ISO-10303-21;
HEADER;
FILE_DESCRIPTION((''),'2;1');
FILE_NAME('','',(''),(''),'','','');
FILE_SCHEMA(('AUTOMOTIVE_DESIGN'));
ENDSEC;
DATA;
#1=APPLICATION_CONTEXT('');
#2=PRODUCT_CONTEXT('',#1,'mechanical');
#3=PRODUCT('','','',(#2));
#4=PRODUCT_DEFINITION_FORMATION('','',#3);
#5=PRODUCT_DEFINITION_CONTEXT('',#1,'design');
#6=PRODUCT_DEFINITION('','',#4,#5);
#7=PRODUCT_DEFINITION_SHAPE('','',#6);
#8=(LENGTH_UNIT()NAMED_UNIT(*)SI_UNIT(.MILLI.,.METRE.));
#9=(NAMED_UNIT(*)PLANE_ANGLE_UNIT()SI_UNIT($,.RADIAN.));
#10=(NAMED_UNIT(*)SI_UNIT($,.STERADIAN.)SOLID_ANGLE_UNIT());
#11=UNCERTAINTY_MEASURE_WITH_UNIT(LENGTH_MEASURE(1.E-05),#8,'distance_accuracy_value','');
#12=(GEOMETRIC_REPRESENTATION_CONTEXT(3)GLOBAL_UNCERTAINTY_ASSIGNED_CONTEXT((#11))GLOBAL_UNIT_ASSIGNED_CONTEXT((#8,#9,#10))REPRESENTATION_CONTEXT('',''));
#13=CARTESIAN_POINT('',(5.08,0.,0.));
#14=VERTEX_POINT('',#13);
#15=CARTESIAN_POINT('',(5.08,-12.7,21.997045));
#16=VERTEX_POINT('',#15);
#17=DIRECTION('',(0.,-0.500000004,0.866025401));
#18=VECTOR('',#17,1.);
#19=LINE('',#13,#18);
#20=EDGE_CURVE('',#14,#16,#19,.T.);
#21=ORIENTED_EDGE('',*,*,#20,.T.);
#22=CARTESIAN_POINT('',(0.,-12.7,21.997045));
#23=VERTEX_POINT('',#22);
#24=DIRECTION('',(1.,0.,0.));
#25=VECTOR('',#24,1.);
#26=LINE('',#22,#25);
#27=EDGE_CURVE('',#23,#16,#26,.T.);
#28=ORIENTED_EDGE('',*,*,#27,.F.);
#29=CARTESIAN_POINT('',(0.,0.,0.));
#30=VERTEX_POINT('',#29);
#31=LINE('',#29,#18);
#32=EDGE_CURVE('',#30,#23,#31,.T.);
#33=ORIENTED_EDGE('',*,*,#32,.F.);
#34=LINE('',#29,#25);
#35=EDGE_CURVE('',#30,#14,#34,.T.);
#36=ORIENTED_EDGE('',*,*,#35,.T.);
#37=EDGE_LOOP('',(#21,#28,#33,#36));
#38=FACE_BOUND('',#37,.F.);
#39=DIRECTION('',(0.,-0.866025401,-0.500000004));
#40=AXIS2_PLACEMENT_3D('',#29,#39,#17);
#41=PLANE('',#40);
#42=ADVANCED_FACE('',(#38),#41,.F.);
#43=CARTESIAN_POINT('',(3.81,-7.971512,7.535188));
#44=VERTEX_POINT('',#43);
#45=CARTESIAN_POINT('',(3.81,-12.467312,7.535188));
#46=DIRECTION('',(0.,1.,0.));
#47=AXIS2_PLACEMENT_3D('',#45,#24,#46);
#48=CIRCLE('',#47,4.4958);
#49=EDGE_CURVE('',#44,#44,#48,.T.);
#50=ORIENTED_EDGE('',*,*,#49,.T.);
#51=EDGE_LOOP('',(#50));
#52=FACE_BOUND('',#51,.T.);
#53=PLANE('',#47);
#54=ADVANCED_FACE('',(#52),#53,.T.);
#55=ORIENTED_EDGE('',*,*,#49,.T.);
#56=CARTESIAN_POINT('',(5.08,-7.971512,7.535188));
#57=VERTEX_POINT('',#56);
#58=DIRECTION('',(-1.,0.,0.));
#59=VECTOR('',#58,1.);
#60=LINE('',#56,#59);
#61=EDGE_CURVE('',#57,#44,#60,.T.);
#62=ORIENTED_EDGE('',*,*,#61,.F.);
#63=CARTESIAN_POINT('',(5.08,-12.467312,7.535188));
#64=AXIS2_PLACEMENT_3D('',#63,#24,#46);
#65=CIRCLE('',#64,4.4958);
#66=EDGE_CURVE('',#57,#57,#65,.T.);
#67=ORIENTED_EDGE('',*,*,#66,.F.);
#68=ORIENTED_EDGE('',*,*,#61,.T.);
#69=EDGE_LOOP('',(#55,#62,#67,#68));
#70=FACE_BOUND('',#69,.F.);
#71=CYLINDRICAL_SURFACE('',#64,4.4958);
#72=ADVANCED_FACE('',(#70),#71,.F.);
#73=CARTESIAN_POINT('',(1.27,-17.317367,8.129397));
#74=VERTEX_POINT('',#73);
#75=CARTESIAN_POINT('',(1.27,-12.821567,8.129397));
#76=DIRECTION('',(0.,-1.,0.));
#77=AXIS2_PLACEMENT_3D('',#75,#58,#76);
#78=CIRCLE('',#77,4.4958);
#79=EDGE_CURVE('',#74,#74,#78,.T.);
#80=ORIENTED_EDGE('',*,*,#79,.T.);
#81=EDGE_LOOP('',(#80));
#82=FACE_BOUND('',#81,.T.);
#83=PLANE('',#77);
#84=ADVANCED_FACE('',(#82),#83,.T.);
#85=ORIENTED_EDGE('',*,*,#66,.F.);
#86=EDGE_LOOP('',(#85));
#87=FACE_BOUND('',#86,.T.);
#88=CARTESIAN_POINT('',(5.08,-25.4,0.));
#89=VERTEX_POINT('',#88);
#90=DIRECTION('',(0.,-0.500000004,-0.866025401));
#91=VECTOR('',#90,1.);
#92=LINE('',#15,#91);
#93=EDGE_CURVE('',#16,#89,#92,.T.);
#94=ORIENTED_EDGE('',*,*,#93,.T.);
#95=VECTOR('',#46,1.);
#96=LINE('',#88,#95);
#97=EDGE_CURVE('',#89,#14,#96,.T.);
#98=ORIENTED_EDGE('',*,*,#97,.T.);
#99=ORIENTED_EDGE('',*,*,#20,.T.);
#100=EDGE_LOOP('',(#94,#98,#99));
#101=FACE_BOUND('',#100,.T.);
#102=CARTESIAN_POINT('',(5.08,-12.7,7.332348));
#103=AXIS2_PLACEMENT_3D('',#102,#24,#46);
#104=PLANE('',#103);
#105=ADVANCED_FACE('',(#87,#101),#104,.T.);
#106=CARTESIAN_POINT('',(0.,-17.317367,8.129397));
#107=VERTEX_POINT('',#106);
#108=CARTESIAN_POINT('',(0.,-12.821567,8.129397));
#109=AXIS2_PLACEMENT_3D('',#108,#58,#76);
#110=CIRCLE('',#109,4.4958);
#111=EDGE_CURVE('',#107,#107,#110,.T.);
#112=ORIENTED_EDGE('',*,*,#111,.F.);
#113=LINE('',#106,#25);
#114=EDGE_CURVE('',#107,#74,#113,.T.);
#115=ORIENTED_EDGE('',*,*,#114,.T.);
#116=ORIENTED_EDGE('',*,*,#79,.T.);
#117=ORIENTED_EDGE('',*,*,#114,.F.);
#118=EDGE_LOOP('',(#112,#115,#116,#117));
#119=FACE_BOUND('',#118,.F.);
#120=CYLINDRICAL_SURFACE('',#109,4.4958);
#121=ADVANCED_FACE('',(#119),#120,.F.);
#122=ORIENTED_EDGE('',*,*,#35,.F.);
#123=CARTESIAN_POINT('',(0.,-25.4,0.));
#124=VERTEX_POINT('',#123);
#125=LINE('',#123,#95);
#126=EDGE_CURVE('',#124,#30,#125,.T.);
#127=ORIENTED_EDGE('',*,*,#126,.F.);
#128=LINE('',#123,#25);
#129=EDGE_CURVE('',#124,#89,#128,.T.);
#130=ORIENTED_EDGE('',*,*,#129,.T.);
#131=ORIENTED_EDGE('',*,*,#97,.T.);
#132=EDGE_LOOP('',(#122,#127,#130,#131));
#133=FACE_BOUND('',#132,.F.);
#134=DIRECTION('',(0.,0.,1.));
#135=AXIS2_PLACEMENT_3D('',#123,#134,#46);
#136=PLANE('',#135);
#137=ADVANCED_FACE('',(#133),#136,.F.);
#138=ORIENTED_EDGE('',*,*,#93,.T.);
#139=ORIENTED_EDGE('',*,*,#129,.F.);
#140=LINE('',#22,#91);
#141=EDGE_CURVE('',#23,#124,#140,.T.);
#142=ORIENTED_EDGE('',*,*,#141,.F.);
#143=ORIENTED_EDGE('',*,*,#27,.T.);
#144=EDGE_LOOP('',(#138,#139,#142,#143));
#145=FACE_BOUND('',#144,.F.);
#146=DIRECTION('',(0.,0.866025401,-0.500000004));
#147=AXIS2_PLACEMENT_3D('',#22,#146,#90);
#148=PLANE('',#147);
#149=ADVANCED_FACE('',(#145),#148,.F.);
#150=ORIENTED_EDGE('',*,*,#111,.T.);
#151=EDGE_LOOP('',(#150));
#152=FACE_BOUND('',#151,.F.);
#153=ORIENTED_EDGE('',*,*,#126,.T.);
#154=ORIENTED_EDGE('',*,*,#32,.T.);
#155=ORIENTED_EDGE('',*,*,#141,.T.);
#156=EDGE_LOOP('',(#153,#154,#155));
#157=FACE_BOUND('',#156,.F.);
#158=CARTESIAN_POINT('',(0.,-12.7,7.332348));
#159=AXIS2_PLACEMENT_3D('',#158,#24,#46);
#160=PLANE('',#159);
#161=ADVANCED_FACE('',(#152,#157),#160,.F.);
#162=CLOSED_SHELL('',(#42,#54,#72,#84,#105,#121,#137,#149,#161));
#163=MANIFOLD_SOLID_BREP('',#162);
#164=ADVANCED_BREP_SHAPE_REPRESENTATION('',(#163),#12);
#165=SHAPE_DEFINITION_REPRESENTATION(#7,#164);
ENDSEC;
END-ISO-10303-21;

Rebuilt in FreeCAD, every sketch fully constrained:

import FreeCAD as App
import Part
import Sketcher
from FreeCAD import Vector
Q = App.Units.Quantity

doc = App.newDocument("Part")
params = doc.addObject("Spreadsheet::Sheet", "Params")
for row, (alias, value) in enumerate([
    ("sketch1_width", "1 in"),
    ("sketch1_length", "1 in"),
    ("pad1_length", "0.2 in"),
    ("sketch2_diameter", "0.354 in"),
    ("pocket1_length", "0.05 in"),
    ("sketch3_diameter", "0.354 in"),
    ("pocket2_length", "0.05 in"),
], start=1):
    params.set(f"A{row}", alias)
    params.set(f"B{row}", "=" + value)
    params.setAlias(f"B{row}", alias)

body = doc.addObject("PartDesign::Body", "Body")

# Sketch on YZ plane
sketch1 = body.newObject("Sketcher::SketchObject", "Sketch")
sketch1.AttachmentSupport = (doc.getObject("YZ_Plane"), [""])
sketch1.MapMode = "FlatFace"
sketch1.addGeometry([
    Part.LineSegment(Vector(0, 0, 0), Vector(-13, 22, 0)),
    Part.LineSegment(Vector(-13, 22, 0), Vector(-25, 0, 0)),
    Part.LineSegment(Vector(-25, 0, 0), Vector(0, 0, 0)),
], False)
sketch1.addConstraint([
    Sketcher.Constraint("Coincident", 0, 2, 1, 1),
    Sketcher.Constraint("Coincident", 1, 2, 2, 1),
    Sketcher.Constraint("Coincident", 2, 2, 0, 1),
    Sketcher.Constraint("Horizontal", 2),
    Sketcher.Constraint("Coincident", 2, 2, -1, 1),
    Sketcher.Constraint("Equal", 0, 1),
    Sketcher.Constraint("DistanceX", 2, 1, 2, 2, Q("1 in")),
    Sketcher.Constraint("Distance", 0, Q("1 in")),
])
sketch1.setExpression("Constraints[6]", "Params.sketch1_width")
sketch1.setExpression("Constraints[7]", "Params.sketch1_length")
pad1 = body.newObject("PartDesign::Pad", "Pad")
pad1.Profile = sketch1
pad1.setExpression("Length", "Params.pad1_length")

# Sketch on YZ plane
sketch2 = body.newObject("Sketcher::SketchObject", "Sketch001")
sketch2.AttachmentSupport = (doc.getObject("YZ_Plane"), [""])
sketch2.MapMode = "FlatFace"
sketch2.AttachmentOffset = App.Placement(Vector(0, 0, 0.2 * 25.4), App.Rotation())
sketch2.addGeometry(Part.Circle(Vector(-12.5, 7.5, 0), Vector(0, 0, 1), 4.5), False)
sketch2.addConstraint([
    Sketcher.Constraint("Diameter", 0, Q("0.354 in")),
    Sketcher.Constraint("DistanceX", 0, 3, -1, 1, Q("12.467312 mm")),
    Sketcher.Constraint("DistanceY", -1, 1, 0, 3, Q("7.535188 mm")),
])
sketch2.setExpression("Constraints[0]", "Params.sketch2_diameter")
pocket1 = body.newObject("PartDesign::Pocket", "Pocket")
pocket1.Profile = sketch2
pocket1.setExpression("Length", "Params.pocket1_length")

# Sketch on YZ plane
sketch3 = body.newObject("Sketcher::SketchObject", "Sketch002")
sketch3.AttachmentSupport = (doc.getObject("YZ_Plane"), [""])
sketch3.MapMode = "FlatFace"
sketch3.addGeometry(Part.Circle(Vector(-12.8, 8.1, 0), Vector(0, 0, 1), 4.5), False)
sketch3.addConstraint([
    Sketcher.Constraint("Diameter", 0, Q("0.354 in")),
    Sketcher.Constraint("DistanceX", 0, 3, -1, 1, Q("12.821567 mm")),
    Sketcher.Constraint("DistanceY", -1, 1, 0, 3, Q("8.129397 mm")),
])
sketch3.setExpression("Constraints[0]", "Params.sketch3_diameter")
pocket2 = body.newObject("PartDesign::Pocket", "Pocket001")
pocket2.Profile = sketch3
pocket2.setExpression("Length", "Params.pocket2_length")
pocket2.Reversed = True

doc.recompute()
